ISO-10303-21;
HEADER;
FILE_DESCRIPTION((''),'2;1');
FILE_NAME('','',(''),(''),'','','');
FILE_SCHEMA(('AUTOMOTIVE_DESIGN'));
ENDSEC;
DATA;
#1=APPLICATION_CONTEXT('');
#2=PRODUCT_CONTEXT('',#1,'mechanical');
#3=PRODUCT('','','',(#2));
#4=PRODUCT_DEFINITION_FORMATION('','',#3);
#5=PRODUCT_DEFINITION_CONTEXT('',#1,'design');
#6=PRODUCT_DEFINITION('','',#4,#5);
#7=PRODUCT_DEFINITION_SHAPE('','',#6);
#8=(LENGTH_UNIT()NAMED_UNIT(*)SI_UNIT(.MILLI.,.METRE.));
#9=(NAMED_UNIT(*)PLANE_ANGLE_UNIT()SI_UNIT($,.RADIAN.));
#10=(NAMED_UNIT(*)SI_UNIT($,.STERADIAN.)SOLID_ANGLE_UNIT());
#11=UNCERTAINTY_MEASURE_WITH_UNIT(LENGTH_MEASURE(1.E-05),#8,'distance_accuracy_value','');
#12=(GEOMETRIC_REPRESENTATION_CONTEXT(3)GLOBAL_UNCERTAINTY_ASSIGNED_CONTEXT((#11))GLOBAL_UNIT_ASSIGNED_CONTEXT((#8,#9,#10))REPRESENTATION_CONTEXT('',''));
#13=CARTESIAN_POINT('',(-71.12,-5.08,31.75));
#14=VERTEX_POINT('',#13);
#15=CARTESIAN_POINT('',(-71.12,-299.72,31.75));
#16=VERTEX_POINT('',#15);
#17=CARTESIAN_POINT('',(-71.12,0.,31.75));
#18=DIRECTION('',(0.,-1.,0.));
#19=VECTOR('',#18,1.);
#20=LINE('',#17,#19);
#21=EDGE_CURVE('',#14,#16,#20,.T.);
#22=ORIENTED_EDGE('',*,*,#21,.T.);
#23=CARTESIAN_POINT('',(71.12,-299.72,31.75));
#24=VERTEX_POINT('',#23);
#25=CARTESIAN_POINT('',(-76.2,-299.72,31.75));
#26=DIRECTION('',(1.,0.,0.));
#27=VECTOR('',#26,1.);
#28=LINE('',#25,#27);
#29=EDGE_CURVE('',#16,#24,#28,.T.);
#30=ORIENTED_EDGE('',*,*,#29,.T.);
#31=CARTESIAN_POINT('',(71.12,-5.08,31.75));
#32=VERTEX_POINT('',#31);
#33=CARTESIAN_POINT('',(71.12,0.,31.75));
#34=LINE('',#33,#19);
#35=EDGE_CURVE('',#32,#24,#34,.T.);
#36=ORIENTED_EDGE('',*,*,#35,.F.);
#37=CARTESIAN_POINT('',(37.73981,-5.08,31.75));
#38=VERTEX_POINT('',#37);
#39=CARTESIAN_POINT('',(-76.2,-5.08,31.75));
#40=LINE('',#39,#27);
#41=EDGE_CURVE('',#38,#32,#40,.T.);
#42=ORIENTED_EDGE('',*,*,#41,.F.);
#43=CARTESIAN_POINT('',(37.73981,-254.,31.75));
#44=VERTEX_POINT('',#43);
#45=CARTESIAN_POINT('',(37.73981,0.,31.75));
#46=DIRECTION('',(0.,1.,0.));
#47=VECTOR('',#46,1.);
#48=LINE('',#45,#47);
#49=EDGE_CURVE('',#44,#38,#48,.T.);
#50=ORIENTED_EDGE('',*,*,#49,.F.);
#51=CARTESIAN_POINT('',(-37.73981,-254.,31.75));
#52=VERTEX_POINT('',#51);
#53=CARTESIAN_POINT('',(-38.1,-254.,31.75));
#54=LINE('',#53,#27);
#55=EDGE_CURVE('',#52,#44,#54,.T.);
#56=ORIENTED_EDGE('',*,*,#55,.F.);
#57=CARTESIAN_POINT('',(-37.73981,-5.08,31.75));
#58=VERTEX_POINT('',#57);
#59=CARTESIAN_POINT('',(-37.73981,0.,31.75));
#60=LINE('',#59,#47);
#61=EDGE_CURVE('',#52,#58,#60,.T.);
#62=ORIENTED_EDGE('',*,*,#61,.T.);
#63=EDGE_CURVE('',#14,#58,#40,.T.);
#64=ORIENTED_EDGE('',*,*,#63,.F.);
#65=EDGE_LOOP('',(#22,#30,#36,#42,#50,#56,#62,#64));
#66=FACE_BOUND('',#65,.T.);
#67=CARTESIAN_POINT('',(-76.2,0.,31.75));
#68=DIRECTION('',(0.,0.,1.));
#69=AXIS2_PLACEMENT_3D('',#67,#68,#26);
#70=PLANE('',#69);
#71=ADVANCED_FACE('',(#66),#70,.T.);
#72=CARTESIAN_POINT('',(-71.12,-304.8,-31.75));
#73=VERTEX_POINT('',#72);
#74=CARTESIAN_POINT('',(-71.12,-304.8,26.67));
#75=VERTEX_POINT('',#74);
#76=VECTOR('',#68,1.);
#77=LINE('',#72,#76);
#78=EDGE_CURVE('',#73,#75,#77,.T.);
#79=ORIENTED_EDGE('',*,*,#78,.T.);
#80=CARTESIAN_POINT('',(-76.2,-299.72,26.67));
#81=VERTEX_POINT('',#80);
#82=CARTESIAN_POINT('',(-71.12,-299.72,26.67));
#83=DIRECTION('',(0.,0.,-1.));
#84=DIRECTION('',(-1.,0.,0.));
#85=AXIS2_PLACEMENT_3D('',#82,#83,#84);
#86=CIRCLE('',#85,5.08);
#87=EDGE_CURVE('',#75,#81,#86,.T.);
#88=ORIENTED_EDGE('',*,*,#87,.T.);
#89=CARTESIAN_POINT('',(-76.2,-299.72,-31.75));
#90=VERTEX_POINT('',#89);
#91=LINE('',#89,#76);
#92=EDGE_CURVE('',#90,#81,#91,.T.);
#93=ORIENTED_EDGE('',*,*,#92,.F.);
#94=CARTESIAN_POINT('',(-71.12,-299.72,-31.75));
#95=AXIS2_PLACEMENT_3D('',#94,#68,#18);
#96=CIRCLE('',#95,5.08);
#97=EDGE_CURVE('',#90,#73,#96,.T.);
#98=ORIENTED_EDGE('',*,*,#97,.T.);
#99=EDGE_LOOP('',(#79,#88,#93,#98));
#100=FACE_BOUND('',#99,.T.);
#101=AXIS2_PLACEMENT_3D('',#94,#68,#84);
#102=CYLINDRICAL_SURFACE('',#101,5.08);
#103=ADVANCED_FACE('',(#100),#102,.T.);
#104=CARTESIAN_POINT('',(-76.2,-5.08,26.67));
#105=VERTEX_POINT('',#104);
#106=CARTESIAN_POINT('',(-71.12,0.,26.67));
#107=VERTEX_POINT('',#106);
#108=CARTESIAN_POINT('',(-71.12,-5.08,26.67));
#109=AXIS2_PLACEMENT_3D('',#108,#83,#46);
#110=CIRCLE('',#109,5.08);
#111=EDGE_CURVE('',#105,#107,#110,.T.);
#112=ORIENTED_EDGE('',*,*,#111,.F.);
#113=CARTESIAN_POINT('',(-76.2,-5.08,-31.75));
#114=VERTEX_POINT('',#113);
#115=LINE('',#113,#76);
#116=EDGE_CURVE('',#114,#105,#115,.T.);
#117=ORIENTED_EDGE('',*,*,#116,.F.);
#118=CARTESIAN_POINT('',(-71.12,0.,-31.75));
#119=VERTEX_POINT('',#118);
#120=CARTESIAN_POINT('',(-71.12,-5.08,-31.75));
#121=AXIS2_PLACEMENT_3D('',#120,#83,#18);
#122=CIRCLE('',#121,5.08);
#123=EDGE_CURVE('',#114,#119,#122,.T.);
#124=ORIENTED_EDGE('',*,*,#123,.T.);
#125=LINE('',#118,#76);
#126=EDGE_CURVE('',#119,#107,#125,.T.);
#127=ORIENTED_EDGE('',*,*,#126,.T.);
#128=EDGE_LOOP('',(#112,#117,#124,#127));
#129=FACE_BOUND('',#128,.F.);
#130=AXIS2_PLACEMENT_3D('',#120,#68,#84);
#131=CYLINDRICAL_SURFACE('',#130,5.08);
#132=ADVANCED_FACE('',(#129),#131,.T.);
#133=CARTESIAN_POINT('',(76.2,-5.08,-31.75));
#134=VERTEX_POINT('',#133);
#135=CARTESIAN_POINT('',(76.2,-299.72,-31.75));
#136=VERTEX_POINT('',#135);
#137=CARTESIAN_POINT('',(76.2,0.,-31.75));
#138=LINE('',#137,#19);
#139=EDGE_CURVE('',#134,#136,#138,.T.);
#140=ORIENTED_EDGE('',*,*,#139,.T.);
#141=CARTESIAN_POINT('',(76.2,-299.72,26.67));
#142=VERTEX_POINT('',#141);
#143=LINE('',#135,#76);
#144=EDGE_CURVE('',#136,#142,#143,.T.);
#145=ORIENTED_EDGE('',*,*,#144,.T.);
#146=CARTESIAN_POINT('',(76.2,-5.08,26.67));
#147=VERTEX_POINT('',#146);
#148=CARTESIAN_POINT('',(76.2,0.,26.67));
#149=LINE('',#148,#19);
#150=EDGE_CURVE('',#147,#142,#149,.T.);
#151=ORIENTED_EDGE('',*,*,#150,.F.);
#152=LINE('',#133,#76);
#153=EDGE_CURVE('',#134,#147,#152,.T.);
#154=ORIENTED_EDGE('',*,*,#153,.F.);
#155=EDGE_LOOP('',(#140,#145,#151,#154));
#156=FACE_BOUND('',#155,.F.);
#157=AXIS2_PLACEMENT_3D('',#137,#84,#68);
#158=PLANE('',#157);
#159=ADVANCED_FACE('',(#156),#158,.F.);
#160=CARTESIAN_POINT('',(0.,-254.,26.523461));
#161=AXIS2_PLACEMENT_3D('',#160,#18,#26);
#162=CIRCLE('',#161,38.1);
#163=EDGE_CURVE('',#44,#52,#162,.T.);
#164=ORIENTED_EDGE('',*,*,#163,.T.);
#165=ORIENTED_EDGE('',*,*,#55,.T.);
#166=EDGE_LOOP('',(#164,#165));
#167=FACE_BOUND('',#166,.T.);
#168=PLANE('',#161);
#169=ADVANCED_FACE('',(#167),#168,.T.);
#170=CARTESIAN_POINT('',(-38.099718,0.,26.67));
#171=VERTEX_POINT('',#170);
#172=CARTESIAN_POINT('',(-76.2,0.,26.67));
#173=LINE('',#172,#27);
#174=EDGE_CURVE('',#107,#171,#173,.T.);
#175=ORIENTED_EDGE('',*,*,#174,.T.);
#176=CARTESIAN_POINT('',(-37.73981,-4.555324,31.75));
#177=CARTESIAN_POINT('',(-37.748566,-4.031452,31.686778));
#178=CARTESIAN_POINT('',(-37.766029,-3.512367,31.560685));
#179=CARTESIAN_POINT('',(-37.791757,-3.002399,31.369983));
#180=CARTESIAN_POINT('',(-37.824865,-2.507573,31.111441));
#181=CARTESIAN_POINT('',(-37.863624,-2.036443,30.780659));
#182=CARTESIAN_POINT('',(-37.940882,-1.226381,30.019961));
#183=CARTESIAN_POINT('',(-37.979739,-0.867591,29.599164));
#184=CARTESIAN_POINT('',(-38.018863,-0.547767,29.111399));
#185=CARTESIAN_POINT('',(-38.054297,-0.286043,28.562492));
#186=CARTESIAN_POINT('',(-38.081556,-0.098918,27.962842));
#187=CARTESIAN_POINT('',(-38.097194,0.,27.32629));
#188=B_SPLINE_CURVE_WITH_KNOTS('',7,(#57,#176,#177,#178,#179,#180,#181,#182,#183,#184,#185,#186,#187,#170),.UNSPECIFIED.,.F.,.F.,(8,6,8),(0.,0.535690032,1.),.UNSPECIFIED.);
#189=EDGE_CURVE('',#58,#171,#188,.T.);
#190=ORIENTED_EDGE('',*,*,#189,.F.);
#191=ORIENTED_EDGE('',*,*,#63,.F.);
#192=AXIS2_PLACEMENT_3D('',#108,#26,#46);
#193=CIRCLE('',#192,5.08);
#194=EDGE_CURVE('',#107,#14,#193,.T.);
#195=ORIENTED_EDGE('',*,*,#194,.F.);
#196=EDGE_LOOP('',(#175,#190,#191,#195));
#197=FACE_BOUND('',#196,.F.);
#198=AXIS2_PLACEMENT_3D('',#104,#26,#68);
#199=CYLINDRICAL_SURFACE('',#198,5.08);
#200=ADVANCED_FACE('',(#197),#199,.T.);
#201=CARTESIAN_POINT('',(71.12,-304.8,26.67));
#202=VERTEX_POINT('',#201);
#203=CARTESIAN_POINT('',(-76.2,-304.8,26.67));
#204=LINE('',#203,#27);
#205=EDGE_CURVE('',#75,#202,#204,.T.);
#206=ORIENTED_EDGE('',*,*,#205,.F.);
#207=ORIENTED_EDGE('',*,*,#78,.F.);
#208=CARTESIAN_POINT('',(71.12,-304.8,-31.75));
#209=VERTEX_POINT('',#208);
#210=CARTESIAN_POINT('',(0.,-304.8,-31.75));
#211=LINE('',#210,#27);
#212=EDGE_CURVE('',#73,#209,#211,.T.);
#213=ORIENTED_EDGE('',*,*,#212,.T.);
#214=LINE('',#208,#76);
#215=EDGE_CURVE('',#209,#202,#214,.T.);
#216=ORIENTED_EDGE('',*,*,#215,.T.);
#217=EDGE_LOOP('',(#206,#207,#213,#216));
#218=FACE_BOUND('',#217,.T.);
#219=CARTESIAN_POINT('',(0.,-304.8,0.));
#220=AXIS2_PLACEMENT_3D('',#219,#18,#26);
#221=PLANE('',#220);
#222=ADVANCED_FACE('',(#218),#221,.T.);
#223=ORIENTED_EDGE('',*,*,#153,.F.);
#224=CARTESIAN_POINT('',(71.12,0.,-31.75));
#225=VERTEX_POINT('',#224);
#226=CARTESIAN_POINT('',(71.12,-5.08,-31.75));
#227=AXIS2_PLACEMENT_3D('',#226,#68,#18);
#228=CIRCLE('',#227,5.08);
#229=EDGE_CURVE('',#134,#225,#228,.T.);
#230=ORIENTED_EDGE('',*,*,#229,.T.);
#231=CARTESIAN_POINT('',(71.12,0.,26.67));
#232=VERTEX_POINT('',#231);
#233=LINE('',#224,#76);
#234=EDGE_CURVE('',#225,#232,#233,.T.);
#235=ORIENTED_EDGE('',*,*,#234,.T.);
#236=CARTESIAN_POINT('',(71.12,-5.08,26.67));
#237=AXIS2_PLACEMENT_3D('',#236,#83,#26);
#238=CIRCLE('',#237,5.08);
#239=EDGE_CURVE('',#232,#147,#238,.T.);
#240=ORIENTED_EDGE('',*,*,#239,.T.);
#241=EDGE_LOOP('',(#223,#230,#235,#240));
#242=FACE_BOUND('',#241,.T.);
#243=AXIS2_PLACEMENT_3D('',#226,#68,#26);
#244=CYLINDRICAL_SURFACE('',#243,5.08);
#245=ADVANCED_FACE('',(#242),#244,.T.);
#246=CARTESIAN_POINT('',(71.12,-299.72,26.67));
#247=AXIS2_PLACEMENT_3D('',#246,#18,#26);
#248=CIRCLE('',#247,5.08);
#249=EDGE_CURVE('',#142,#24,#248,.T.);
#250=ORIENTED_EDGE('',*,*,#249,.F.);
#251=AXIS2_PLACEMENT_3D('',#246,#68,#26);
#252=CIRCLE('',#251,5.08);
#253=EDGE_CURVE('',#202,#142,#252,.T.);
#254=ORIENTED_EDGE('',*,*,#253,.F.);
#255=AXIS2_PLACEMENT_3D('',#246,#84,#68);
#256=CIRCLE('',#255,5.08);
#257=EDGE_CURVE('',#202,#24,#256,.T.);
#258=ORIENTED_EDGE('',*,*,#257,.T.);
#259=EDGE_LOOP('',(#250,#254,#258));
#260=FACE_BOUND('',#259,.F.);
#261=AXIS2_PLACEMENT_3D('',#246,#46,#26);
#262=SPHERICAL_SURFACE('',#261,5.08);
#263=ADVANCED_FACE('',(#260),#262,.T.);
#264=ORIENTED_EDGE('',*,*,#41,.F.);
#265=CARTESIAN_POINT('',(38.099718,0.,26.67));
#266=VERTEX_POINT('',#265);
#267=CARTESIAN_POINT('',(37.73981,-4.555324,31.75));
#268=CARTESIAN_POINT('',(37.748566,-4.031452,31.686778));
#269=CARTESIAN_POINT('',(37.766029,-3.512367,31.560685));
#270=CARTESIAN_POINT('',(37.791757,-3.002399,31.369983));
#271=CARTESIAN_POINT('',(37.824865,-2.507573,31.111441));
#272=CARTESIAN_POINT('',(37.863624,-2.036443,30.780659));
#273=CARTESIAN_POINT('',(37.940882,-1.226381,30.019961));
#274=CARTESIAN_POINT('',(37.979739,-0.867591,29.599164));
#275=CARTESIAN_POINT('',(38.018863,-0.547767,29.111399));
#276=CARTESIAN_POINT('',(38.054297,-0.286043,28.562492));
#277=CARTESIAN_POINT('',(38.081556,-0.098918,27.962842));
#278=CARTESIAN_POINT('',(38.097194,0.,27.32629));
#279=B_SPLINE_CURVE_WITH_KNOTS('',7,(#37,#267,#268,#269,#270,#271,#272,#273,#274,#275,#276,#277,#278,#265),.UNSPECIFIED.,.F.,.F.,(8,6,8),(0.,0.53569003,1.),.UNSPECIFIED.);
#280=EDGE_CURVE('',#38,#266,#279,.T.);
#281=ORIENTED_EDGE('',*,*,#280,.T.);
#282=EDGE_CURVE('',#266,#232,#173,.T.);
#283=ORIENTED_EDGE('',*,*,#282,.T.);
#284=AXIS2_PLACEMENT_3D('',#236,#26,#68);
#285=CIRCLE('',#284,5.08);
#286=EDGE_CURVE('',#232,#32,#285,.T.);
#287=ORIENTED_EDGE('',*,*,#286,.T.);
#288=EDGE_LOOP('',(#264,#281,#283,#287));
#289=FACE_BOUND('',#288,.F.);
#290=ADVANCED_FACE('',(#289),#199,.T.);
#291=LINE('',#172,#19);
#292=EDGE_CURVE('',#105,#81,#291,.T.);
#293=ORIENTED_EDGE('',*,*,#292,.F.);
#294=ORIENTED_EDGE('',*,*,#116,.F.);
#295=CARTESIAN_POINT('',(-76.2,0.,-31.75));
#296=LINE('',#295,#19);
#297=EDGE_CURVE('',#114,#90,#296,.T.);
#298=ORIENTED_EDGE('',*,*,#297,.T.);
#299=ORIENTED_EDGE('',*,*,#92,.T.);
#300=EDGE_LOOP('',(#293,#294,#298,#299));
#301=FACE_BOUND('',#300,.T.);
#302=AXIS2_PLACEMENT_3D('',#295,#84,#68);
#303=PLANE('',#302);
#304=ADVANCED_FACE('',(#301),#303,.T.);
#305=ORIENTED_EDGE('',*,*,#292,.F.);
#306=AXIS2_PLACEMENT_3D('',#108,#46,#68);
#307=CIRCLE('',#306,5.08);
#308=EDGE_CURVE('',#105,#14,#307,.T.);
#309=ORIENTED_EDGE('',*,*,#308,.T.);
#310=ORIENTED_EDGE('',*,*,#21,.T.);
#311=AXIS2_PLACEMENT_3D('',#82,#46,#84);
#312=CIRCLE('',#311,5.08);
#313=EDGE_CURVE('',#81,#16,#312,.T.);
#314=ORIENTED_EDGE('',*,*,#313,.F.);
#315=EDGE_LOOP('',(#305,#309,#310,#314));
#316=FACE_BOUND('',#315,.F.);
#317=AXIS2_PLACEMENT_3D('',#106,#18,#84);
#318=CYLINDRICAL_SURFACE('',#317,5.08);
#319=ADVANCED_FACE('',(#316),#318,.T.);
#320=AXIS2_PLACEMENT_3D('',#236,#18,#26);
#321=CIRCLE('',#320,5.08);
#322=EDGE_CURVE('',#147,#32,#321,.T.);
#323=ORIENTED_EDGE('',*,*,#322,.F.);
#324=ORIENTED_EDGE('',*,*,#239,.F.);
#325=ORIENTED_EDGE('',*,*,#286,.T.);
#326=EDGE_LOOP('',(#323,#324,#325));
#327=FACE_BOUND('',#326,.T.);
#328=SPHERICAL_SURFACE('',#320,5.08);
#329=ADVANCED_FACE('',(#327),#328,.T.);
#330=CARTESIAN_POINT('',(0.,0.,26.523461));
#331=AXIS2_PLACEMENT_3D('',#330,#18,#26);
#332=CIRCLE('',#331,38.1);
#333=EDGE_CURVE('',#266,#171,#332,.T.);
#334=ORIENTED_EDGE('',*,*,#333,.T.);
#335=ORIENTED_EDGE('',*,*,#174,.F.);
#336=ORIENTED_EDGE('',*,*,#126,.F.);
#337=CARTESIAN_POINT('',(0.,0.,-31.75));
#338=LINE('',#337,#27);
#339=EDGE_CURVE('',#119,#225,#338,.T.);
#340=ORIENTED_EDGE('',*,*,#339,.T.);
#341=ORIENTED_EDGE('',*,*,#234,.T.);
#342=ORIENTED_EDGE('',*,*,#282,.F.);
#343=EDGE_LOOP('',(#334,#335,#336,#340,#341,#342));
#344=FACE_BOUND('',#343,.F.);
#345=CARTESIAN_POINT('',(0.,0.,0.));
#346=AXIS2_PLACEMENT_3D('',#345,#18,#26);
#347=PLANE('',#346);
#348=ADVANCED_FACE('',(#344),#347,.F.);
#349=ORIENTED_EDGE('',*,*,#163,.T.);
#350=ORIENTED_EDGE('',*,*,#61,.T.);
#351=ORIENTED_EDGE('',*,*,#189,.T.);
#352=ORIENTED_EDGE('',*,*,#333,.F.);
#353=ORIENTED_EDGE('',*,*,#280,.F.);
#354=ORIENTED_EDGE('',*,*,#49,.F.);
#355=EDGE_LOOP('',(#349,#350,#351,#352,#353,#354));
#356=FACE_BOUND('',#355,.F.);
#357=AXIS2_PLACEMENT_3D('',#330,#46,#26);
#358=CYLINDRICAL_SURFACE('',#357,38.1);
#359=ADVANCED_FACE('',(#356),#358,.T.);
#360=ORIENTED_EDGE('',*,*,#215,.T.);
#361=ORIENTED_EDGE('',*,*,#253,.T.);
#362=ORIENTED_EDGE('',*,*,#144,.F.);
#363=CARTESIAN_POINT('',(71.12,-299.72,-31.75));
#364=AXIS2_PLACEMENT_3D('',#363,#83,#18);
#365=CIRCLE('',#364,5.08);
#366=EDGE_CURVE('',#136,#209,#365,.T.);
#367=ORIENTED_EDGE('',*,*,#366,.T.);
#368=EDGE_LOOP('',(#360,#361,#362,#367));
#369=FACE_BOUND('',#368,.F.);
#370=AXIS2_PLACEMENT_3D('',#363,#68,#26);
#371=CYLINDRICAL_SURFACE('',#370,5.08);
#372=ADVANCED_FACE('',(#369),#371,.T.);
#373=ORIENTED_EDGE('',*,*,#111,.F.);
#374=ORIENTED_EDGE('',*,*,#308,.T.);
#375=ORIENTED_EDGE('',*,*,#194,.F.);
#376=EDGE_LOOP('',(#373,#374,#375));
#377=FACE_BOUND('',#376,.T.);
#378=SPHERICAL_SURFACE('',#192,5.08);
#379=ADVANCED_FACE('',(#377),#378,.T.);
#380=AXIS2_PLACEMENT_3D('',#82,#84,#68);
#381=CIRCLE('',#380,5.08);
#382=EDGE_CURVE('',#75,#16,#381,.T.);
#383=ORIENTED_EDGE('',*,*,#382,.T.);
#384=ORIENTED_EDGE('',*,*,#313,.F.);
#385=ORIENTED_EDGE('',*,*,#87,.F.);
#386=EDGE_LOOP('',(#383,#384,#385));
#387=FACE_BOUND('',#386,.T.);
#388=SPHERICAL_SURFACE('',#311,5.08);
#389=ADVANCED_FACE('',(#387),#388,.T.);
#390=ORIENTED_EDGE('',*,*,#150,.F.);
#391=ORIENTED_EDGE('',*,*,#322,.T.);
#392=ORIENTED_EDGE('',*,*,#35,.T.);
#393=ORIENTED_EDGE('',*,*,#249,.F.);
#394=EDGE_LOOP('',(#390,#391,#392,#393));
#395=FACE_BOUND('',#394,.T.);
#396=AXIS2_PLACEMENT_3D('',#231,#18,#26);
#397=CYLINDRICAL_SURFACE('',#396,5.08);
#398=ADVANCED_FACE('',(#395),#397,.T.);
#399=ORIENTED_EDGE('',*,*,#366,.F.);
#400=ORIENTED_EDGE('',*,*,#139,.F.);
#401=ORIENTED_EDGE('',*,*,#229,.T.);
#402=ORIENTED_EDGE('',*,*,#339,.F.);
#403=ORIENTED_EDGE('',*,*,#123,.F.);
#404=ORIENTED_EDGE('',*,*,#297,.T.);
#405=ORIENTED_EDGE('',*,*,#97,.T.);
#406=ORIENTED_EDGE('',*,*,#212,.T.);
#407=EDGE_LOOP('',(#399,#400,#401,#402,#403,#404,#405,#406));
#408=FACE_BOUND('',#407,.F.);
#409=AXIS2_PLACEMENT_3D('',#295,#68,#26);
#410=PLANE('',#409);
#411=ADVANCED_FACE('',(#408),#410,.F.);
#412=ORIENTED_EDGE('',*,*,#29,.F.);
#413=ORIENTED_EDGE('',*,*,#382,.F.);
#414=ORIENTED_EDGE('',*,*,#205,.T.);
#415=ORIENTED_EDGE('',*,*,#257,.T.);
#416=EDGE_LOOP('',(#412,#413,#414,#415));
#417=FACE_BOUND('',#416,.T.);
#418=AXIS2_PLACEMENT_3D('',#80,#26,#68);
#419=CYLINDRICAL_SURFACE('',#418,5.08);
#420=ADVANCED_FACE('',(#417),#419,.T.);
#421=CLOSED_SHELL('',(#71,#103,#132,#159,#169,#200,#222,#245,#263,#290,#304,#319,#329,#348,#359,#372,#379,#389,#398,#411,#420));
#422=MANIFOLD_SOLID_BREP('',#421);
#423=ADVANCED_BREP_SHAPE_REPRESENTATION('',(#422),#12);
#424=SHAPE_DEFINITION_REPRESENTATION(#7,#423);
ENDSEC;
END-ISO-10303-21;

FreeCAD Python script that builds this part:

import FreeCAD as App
import Part
import Sketcher

V = App.Vector
Q = App.Units.Quantity


def edges_at(feature, points):
    """Names of the edges that pass closest to the given points."""
    edges = feature.Shape.Edges
    near = lambda p: min(range(len(edges)), key=lambda i: edges[i].distToShape(Part.Vertex(*p))[0])
    return sorted({f"Edge{near(p) + 1}" for p in points})


def add_polygon(sketch, points):
    """Adds a closed chain of lines whose ends are joined by coincident constraints."""
    first, n = sketch.GeometryCount, len(points)
    for a, b in zip(points, points[1:] + points[:1]):
        sketch.addGeometry(Part.LineSegment(App.Vector(*a, 0), App.Vector(*b, 0)), False)
    for i in range(n):
        sketch.addConstraint(Sketcher.Constraint("Coincident", first + i, 2, first + (i + 1) % n, 1))

doc = App.newDocument("Part")
body = doc.addObject("PartDesign::Body", "Body")

# Sketch on XZ plane
sketch1 = doc.addObject("Sketcher::SketchObject", "Sketch")
body.addObject(sketch1)
sketch1.AttachmentSupport = (doc.XZ_Plane, [""])
sketch1.MapMode = "FlatFace"
add_polygon(sketch1, [(-76.2, 31.75), (-76.2, -31.75), (76.2, -31.75), (76.2, 31.75)])  # lines 0-3
sketch1.addConstraint([
    Sketcher.Constraint("Vertical", 0),
    Sketcher.Constraint("Horizontal", 1),
    Sketcher.Constraint("Vertical", 2),
    Sketcher.Constraint("Horizontal", 3),
    Sketcher.Constraint("Symmetric", 0, 2, 2, 2, -1, 1),
    Sketcher.Constraint("DistanceX", 1, 1, 1, 2, Q("6 in")),
    Sketcher.Constraint("DistanceY", 0, 2, 0, 1, Q("2.5 in")),
])
pad1 = doc.addObject("PartDesign::Pad", "Pad")
body.addObject(pad1)
pad1.Profile = sketch1
pad1.Length = Q("12 in")
doc.recompute()

fillet = doc.addObject("PartDesign::Fillet", "Fillet")
body.addObject(fillet)
fillet.Base = (pad1, edges_at(pad1, [
    (76.2, -152.4, 31.75),
    (76.2, -304.8, 0),
    (76.2, 0, 0),
    (0, 0, 31.75),
    (-76.2, 0, 0),
    (-76.2, -152.4, 31.75),
    (-76.2, -304.8, 0),
    (0, -304.8, 31.75),
]))
fillet.Radius = Q("0.2 in")

# Sketch on XZ plane
sketch2 = doc.addObject("Sketcher::SketchObject", "Sketch001")
body.addObject(sketch2)
sketch2.AttachmentSupport = (doc.XZ_Plane, [""])
sketch2.MapMode = "FlatFace"
sketch2.addGeometry(Part.Circle(V(0, 26.523461, 0), V(0, 0, 1), 38.1), False)
sketch2.addConstraint([
    Sketcher.Constraint("PointOnObject", 0, 3, -2),
    Sketcher.Constraint("Diameter", 0, Q("3 in")),
    Sketcher.Constraint("DistanceY", -1, 1, 0, 3, Q("26.523461 mm")),
])
pad2 = doc.addObject("PartDesign::Pad", "Pad001")
body.addObject(pad2)
pad2.Profile = sketch2
pad2.Length = Q("10 in")

doc.recompute()
